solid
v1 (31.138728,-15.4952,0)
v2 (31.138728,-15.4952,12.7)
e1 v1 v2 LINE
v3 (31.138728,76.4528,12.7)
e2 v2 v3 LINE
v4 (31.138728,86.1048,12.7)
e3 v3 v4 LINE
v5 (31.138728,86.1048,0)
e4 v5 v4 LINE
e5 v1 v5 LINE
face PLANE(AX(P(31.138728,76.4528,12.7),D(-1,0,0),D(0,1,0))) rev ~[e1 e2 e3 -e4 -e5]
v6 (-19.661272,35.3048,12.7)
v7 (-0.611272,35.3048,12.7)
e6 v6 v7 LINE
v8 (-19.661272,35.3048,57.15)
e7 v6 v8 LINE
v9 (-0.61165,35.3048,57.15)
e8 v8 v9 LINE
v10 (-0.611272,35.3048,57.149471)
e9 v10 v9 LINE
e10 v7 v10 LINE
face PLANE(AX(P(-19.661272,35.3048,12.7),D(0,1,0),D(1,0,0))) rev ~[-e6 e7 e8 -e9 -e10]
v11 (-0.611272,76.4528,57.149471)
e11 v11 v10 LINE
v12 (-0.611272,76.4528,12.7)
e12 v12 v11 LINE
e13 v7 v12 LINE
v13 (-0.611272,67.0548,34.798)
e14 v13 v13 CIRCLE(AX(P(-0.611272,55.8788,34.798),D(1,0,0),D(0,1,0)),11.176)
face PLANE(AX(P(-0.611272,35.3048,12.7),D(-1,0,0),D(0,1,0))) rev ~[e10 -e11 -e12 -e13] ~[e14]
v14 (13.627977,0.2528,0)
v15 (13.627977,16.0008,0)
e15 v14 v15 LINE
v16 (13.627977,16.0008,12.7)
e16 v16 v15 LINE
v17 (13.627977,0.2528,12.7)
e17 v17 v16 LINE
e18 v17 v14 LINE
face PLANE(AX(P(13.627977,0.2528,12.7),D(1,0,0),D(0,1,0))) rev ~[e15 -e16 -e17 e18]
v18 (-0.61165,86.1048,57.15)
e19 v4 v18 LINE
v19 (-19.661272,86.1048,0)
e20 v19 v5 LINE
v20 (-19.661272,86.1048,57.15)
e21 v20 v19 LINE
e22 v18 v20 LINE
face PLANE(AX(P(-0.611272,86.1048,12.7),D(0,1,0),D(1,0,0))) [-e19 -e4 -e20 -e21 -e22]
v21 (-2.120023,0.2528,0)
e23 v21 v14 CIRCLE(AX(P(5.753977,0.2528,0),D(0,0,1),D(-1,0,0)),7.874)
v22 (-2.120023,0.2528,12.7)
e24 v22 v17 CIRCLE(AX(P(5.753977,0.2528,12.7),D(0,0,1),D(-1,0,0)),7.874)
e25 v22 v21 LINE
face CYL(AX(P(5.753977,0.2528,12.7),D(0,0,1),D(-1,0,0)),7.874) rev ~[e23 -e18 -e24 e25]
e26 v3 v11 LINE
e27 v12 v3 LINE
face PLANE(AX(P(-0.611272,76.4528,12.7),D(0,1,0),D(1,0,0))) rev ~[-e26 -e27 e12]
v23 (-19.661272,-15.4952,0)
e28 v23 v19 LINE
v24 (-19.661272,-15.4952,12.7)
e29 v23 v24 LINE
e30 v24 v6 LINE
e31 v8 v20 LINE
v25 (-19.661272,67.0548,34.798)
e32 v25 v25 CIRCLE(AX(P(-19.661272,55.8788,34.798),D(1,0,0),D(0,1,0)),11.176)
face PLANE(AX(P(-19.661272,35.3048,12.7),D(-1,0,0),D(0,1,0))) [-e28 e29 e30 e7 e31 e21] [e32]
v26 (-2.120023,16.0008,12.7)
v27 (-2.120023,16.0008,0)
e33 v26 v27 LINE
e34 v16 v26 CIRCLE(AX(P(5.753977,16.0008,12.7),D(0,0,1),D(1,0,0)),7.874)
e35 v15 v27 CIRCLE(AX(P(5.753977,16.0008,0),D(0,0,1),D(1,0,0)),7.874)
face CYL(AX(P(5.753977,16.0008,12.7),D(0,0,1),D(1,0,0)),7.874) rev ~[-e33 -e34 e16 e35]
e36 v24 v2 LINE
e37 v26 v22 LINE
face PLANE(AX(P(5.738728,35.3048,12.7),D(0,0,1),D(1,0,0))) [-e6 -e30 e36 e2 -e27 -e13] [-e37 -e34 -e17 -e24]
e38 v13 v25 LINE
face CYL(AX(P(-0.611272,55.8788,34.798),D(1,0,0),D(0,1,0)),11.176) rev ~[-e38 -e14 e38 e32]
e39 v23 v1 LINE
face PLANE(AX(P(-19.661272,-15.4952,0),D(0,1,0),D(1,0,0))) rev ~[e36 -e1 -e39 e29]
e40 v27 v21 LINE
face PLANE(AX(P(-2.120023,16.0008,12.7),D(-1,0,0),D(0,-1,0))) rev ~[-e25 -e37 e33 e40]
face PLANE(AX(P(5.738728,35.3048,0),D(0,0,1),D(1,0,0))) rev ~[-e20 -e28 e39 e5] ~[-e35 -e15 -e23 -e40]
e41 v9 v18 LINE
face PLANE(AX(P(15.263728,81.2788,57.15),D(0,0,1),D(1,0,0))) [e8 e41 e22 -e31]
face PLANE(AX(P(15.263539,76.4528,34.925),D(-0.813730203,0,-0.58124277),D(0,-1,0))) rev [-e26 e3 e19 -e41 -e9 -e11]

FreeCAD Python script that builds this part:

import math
import FreeCAD as App
import Part
import Sketcher
Q = App.Units.Quantity


def edges_at(feature, points):
    """Names of the edges that pass closest to the given points."""
    edges = feature.Shape.Edges
    near = lambda p: min(range(len(edges)), key=lambda i: edges[i].distToShape(Part.Vertex(*p))[0])
    return sorted({f"Edge{near(p) + 1}" for p in points})


def add_polygon(sketch, points):
    """Adds a closed chain of lines whose ends are joined by coincident constraints."""
    first, n = sketch.GeometryCount, len(points)
    for a, b in zip(points, points[1:] + points[:1]):
        sketch.addGeometry(Part.LineSegment(App.Vector(*a, 0), App.Vector(*b, 0)), False)
    for i in range(n):
        sketch.addConstraint(Sketcher.Constraint("Coincident", first + i, 2, first + (i + 1) % n, 1))

doc = App.newDocument("Part")
body = doc.addObject("PartDesign::Body", "Body")

# Sketch on XY plane
sketch1 = doc.addObject("Sketcher::SketchObject", "Sketch")
body.addObject(sketch1)
sketch1.AttachmentSupport = (doc.XY_Plane, [""])
sketch1.MapMode = "FlatFace"
add_polygon(sketch1, [(-20, 86), (-20, -15), (31, -15), (31, 86)])  # lines 0-3
sketch1.addConstraint([
    Sketcher.Constraint("Vertical", 0),
    Sketcher.Constraint("Horizontal", 1),
    Sketcher.Constraint("Vertical", 2),
    Sketcher.Constraint("Horizontal", 3),
    Sketcher.Constraint("DistanceX", 1, 1, 1, 2, Q("2 in")),
    Sketcher.Constraint("DistanceY", 0, 2, 0, 1, Q("4 in")),
    Sketcher.Constraint("DistanceY", 0, 2, -1, 1, Q("15.4952 mm")),
    Sketcher.Constraint("DistanceX", 0, 2, -1, 1, Q("19.661272 mm")),
])
pad1 = doc.addObject("PartDesign::Pad", "Pad")
body.addObject(pad1)
pad1.Profile = sketch1
pad1.Length = Q("0.5 in")

# Sketch on XY plane
sketch2 = doc.addObject("Sketcher::SketchObject", "Sketch001")
body.addObject(sketch2)
sketch2.AttachmentSupport = (doc.XY_Plane, [""])
sketch2.MapMode = "FlatFace"
sketch2.AttachmentOffset = App.Placement(App.Vector(0, 0, 0.5 * 25.4), App.Rotation())
add_polygon(sketch2, [(-20, 86), (-20, 35), (-1, 35), (-1, 86)])  # lines 0-3
sketch2.addConstraint([
    Sketcher.Constraint("Vertical", 0),
    Sketcher.Constraint("Horizontal", 1),
    Sketcher.Constraint("Vertical", 2),
    Sketcher.Constraint("Horizontal", 3),
    Sketcher.Constraint("DistanceY", 0, 2, 0, 1, Q("2 in")),
    Sketcher.Constraint("DistanceX", 1, 1, 1, 2, Q("0.75 in")),
    Sketcher.Constraint("DistanceY", -1, 1, 0, 2, Q("35.3048 mm")),
    Sketcher.Constraint("DistanceX", 0, 2, -1, 1, Q("19.661272 mm")),
])
pad2 = doc.addObject("PartDesign::Pad", "Pad001")
body.addObject(pad2)
pad2.Profile = sketch2
pad2.Length = Q("1.75 in")

# Sketch on XY plane
sketch3 = doc.addObject("Sketcher::SketchObject", "Sketch002")
body.addObject(sketch3)
sketch3.AttachmentSupport = (doc.XY_Plane, [""])
sketch3.MapMode = "FlatFace"
sketch3.AttachmentOffset = App.Placement(App.Vector(0, 0, 0.5 * 25.4), App.Rotation())
sketch3.addGeometry([
    Part.LineSegment(App.Vector(-2, 16, 0), App.Vector(-2, 0, 0)),
    Part.ArcOfCircle(Part.Circle(App.Vector(6, 0, 0), App.Vector(0, 0, 1), 8), math.radians(180), math.radians(360)),
    Part.LineSegment(App.Vector(14, 0, 0), App.Vector(14, 16, 0)),
    Part.ArcOfCircle(Part.Circle(App.Vector(6, 16, 0), App.Vector(0, 0, 1), 8), math.radians(0), math.radians(180)),
], False)
sketch3.addConstraint([
    Sketcher.Constraint("Tangent", 0, 2, 1, 1),
    Sketcher.Constraint("Tangent", 1, 2, 2, 1),
    Sketcher.Constraint("Tangent", 2, 2, 3, 1),
    Sketcher.Constraint("Tangent", 3, 2, 0, 1),
    Sketcher.Constraint("Vertical", 0),
    Sketcher.Constraint("Vertical", 2),
    Sketcher.Constraint("Radius", 1, Q("0.31 in")),
    Sketcher.Constraint("DistanceY", 0, 2, 0, 1, Q("0.62 in")),
    Sketcher.Constraint("DistanceY", -1, 1, 1, 3, Q("0.2528 mm")),
    Sketcher.Constraint("DistanceX", -1, 1, 1, 3, Q("5.753977 mm")),
])
pocket1 = doc.addObject("PartDesign::Pocket", "Pocket")
body.addObject(pocket1)
pocket1.Profile = sketch3
pocket1.Length = Q("1 in")

# Sketch on XY plane
sketch4 = doc.addObject("Sketcher::SketchObject", "Sketch003")
body.addObject(sketch4)
sketch4.AttachmentSupport = (doc.XY_Plane, [""])
sketch4.MapMode = "FlatFace"
sketch4.AttachmentOffset = App.Placement(App.Vector(0, 0, 0.5 * 25.4), App.Rotation())
add_polygon(sketch4, [(-1, 86), (-1, 76), (31, 76), (31, 86)])  # lines 0-3
sketch4.addConstraint([
    Sketcher.Constraint("Vertical", 0),
    Sketcher.Constraint("Horizontal", 1),
    Sketcher.Constraint("Vertical", 2),
    Sketcher.Constraint("Horizontal", 3),
    Sketcher.Constraint("DistanceX", 1, 1, 1, 2, Q("1.25 in")),
    Sketcher.Constraint("DistanceY", 0, 2, 0, 1, Q("0.38 in")),
    Sketcher.Constraint("DistanceY", -1, 1, 0, 2, Q("76.4528 mm")),
    Sketcher.Constraint("DistanceX", 0, 2, -1, 1, Q("0.611272 mm")),
])
pad3 = doc.addObject("PartDesign::Pad", "Pad002")
body.addObject(pad3)
pad3.Profile = sketch4
pad3.Length = Q("1.75 in")
doc.recompute()

chamfer = doc.addObject("PartDesign::Chamfer", "Chamfer")
body.addObject(chamfer)
chamfer.Base = (pad3, edges_at(pad3, [(31.139, 81.279, 57.15)]))
chamfer.ChamferType = "Two distances"
chamfer.Size = Q("1.75 in")
chamfer.Size2 = 31.750378

# Sketch on YZ plane
sketch5 = doc.addObject("Sketcher::SketchObject", "Sketch004")
body.addObject(sketch5)
sketch5.AttachmentSupport = (doc.YZ_Plane, [""])
sketch5.MapMode = "FlatFace"
sketch5.AttachmentOffset = App.Placement(App.Vector(0, 0, -0.611272), App.Rotation())
sketch5.addGeometry(Part.Circle(App.Vector(56, 35, 0), App.Vector(0, 0, 1), 11), False)
sketch5.addConstraint([
    Sketcher.Constraint("Diameter", 0, Q("0.88 in")),
    Sketcher.Constraint("DistanceY", -1, 1, 0, 3, Q("1.37 in")),
    Sketcher.Constraint("DistanceX", -1, 1, 0, 3, Q("55.8788 mm")),
])
pocket2 = doc.addObject("PartDesign::Pocket", "Pocket001")
body.addObject(pocket2)
pocket2.Profile = sketch5
pocket2.Length = Q("1 in")

doc.recompute()
